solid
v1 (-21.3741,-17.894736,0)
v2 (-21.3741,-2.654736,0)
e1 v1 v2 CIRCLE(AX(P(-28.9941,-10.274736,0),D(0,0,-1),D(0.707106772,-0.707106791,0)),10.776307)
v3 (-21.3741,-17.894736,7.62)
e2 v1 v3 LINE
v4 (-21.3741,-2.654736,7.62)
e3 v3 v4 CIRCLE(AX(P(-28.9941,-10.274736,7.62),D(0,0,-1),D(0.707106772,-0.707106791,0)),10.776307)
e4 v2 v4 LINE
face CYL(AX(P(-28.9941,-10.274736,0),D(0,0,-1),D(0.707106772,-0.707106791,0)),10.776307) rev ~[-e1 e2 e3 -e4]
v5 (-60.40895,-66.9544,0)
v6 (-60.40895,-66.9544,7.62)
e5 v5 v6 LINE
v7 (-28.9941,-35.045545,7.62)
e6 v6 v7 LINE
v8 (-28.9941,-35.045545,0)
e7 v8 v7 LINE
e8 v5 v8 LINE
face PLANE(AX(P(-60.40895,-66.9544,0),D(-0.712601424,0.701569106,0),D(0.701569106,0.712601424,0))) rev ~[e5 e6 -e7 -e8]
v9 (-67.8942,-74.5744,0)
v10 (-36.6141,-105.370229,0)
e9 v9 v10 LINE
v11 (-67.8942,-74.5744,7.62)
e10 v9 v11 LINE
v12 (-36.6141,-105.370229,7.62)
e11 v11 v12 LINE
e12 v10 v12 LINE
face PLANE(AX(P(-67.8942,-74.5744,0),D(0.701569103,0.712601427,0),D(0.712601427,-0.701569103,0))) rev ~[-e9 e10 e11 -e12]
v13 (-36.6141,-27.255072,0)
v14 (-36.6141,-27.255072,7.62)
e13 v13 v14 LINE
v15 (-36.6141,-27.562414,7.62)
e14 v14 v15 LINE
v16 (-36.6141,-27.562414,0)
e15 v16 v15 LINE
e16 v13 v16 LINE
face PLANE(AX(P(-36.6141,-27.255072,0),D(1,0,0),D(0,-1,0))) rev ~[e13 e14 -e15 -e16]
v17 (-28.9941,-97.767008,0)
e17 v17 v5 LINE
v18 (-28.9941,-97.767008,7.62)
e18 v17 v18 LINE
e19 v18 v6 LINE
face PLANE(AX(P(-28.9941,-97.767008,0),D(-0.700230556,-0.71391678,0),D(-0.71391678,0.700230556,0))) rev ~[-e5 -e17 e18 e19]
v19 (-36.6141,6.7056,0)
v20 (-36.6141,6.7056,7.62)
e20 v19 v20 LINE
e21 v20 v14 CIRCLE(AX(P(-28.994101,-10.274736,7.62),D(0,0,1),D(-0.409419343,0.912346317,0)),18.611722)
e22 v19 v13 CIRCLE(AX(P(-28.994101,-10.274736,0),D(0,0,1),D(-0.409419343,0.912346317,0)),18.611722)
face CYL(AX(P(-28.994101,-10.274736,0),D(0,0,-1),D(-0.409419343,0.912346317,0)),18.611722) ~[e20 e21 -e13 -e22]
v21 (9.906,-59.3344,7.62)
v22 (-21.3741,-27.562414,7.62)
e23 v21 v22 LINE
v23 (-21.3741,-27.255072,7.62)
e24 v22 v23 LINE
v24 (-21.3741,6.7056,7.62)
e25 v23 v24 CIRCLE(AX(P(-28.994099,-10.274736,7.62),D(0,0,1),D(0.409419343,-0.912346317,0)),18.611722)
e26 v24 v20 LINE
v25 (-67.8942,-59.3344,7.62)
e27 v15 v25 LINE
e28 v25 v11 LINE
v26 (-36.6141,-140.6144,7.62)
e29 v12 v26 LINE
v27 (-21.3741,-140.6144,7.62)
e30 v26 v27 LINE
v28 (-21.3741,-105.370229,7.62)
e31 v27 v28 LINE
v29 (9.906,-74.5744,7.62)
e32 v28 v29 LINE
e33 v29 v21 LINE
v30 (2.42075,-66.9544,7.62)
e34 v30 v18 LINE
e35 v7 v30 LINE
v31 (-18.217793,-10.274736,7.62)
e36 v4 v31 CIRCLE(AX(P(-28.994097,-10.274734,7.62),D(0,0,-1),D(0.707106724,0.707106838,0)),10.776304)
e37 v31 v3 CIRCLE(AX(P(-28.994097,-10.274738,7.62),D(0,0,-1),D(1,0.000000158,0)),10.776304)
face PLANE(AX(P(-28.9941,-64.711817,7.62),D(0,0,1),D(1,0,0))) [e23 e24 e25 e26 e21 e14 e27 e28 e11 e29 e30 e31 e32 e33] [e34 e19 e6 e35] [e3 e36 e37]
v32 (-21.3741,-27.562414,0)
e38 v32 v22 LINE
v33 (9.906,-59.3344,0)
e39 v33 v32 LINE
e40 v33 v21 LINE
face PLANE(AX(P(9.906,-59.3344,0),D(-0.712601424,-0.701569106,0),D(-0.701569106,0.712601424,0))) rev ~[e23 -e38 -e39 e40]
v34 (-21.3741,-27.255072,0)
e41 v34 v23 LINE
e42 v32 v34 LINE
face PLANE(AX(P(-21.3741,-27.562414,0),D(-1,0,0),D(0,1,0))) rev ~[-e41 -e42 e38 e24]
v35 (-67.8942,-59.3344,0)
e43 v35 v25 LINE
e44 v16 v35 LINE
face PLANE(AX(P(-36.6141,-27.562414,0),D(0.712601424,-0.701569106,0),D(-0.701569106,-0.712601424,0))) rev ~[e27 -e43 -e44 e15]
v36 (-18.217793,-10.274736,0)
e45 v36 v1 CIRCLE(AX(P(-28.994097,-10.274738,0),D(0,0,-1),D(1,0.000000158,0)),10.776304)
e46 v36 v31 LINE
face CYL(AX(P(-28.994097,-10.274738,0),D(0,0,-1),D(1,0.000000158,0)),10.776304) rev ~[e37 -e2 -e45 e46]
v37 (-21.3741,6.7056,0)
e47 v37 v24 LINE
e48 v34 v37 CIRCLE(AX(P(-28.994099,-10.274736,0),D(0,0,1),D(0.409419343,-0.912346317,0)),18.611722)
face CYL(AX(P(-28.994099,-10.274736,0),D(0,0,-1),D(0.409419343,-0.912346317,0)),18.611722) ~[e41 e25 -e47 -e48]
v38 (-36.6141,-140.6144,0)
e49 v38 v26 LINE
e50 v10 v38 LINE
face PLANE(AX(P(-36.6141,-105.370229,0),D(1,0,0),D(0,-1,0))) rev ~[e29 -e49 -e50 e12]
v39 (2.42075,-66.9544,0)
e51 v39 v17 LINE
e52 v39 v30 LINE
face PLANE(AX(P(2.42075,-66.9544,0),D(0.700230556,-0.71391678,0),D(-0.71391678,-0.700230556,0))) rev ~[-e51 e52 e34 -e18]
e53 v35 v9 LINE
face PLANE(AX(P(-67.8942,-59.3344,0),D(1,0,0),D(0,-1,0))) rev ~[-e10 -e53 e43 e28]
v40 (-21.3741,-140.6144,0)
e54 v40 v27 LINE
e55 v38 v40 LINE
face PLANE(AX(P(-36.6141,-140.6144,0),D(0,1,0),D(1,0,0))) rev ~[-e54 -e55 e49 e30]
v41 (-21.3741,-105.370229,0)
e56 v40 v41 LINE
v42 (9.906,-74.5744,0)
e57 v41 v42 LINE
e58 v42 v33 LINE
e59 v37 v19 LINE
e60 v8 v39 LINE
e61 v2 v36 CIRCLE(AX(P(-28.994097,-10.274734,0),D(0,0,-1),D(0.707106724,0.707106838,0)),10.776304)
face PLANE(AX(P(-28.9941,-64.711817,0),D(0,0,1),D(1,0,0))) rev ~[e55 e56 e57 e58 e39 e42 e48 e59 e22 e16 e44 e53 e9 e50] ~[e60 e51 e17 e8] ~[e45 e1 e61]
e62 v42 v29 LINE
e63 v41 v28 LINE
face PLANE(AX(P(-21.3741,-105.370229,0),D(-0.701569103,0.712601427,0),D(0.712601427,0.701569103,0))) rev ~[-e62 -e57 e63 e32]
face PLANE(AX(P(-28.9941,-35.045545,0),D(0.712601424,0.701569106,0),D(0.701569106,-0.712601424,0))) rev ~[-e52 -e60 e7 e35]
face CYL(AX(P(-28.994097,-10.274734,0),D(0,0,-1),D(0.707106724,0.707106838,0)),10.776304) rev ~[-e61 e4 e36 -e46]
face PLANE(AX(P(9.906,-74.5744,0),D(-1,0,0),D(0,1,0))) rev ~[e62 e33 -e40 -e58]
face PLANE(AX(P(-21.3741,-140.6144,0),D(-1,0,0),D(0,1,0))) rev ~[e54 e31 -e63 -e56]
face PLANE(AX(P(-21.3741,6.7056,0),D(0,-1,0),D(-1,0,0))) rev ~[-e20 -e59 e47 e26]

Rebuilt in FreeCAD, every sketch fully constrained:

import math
import FreeCAD as App
import Part
import Sketcher
from FreeCAD import Vector
Q = App.Units.Quantity


def add_polygon(sketch, points):
    """Adds a closed chain of lines whose ends are joined by coincident constraints."""
    first, n = sketch.GeometryCount, len(points)
    for a, b in zip(points, points[1:] + points[:1]):
        sketch.addGeometry(Part.LineSegment(App.Vector(*a, 0), App.Vector(*b, 0)), False)
    for i in range(n):
        sketch.addConstraint(Sketcher.Constraint("Coincident", first + i, 2, first + (i + 1) % n, 1))

doc = App.newDocument("Part")
body = doc.addObject("PartDesign::Body", "Body")

# Sketch on XY plane
sketch1 = body.newObject("Sketcher::SketchObject", "Sketch")
sketch1.AttachmentSupport = (doc.getObject("XY_Plane"), [""])
sketch1.MapMode = "FlatFace"
sketch1.addGeometry(Part.LineSegment(Vector(-36.61, -105.37, 0), Vector(-36.61, -140.61, 0)), False)  # 0
sketch1.addGeometry(Part.LineSegment(Vector(-36.61, -140.61, 0), Vector(-21.37, -140.61, 0)), False)  # 1
sketch1.addGeometry(Part.LineSegment(Vector(-21.37, -140.61, 0), Vector(-21.37, -105.37, 0)), False)  # 2
sketch1.addGeometry(Part.LineSegment(Vector(-21.37, -105.37, 0), Vector(9.91, -74.57, 0)), False)  # 3
sketch1.addGeometry(Part.LineSegment(Vector(9.91, -74.57, 0), Vector(9.91, -59.33, 0)), False)  # 4
sketch1.addGeometry(Part.LineSegment(Vector(9.91, -59.33, 0), Vector(-21.37, -27.56, 0)), False)  # 5
sketch1.addGeometry(Part.LineSegment(Vector(-21.37, -27.56, 0), Vector(-21.37, -27.26, 0)), False)  # 6
sketch1.addGeometry(Part.ArcOfCircle(Part.Circle(Vector(-28.99, -10.27, 0), Vector(0, 0, 1), 18.61), math.radians(-66), math.radians(66)), False)  # 7
sketch1.addGeometry(Part.LineSegment(Vector(-21.37, 6.71, 0), Vector(-36.61, 6.71, 0)), False)  # 8
sketch1.addGeometry(Part.ArcOfCircle(Part.Circle(Vector(-28.99, -10.27, 0), Vector(0, 0, 1), 18.61), math.radians(114), math.radians(246)), False)  # 9
sketch1.addGeometry(Part.LineSegment(Vector(-36.61, -27.26, 0), Vector(-36.61, -27.56, 0)), False)  # 10
sketch1.addGeometry(Part.LineSegment(Vector(-36.61, -27.56, 0), Vector(-67.89, -59.33, 0)), False)  # 11
sketch1.addGeometry(Part.LineSegment(Vector(-67.89, -59.33, 0), Vector(-67.89, -74.57, 0)), False)  # 12
sketch1.addGeometry(Part.LineSegment(Vector(-67.89, -74.57, 0), Vector(-36.61, -105.37, 0)), False)  # 13
add_polygon(sketch1, [(2.42, -66.95), (-28.99, -97.77), (-60.41, -66.95), (-28.99, -35.05)])  # lines 14-17
sketch1.addGeometry(Part.ArcOfCircle(Part.Circle(Vector(-28.99, -10.27, 0), Vector(0, 0, 1), 10.78), math.radians(-45), math.radians(0)), False)  # 18
sketch1.addGeometry(Part.ArcOfCircle(Part.Circle(Vector(-28.99, -10.27, 0), Vector(0, 0, 1), 10.78), math.radians(45), math.radians(315)), False)  # 19
sketch1.addGeometry(Part.ArcOfCircle(Part.Circle(Vector(-28.99, -10.27, 0), Vector(0, 0, 1), 10.78), math.radians(0), math.radians(45)), False)  # 20
sketch1.addConstraint(Sketcher.Constraint("Coincident", 0, 2, 1, 1))
sketch1.addConstraint(Sketcher.Constraint("Coincident", 1, 2, 2, 1))
sketch1.addConstraint(Sketcher.Constraint("Coincident", 2, 2, 3, 1))
sketch1.addConstraint(Sketcher.Constraint("Coincident", 3, 2, 4, 1))
sketch1.addConstraint(Sketcher.Constraint("Coincident", 4, 2, 5, 1))
sketch1.addConstraint(Sketcher.Constraint("Coincident", 5, 2, 6, 1))
sketch1.addConstraint(Sketcher.Constraint("Coincident", 6, 2, 7, 1))
sketch1.addConstraint(Sketcher.Constraint("Coincident", 7, 2, 8, 1))
sketch1.addConstraint(Sketcher.Constraint("Coincident", 8, 2, 9, 1))
sketch1.addConstraint(Sketcher.Constraint("Coincident", 9, 2, 10, 1))
sketch1.addConstraint(Sketcher.Constraint("Coincident", 10, 2, 11, 1))
sketch1.addConstraint(Sketcher.Constraint("Coincident", 11, 2, 12, 1))
sketch1.addConstraint(Sketcher.Constraint("Coincident", 12, 2, 13, 1))
sketch1.addConstraint(Sketcher.Constraint("Coincident", 13, 2, 0, 1))
sketch1.addConstraint(Sketcher.Constraint("Tangent", 18, 1, 19, 2))
sketch1.addConstraint(Sketcher.Constraint("Tangent", 19, 1, 20, 2))
sketch1.addConstraint(Sketcher.Constraint("Tangent", 20, 1, 18, 2))
sketch1.addConstraint(Sketcher.Constraint("Vertical", 0))
sketch1.addConstraint(Sketcher.Constraint("Horizontal", 1))
sketch1.addConstraint(Sketcher.Constraint("Vertical", 2))
sketch1.addConstraint(Sketcher.Constraint("Vertical", 4))
sketch1.addConstraint(Sketcher.Constraint("Vertical", 6))
sketch1.addConstraint(Sketcher.Constraint("Horizontal", 8))
sketch1.addConstraint(Sketcher.Constraint("Vertical", 10))
sketch1.addConstraint(Sketcher.Constraint("Vertical", 12))
sketch1.addConstraint(Sketcher.Constraint("Coincident", 9, 3, 7, 3))
sketch1.addConstraint(Sketcher.Constraint("Coincident", 18, 3, 7, 3))
sketch1.addConstraint(Sketcher.Constraint("Equal", 7, 9))
sketch1.addConstraint(Sketcher.Constraint("Perpendicular", 3, 5))
sketch1.addConstraint(Sketcher.Constraint("Perpendicular", 11, 13))
sketch1.addConstraint(Sketcher.Constraint("Perpendicular", 13, 16))
sketch1.addConstraint(Sketcher.Constraint("Parallel", 5, 17))
sketch1.addConstraint(Sketcher.Constraint("Horizontal", 6, 2, 9, 2))
sketch1.addConstraint(Sketcher.Constraint("Horizontal", 5, 2, 10, 2))
sketch1.addConstraint(Sketcher.Constraint("Horizontal", 4, 2, 11, 2))
sketch1.addConstraint(Sketcher.Constraint("Horizontal", 3, 2, 12, 2))
sketch1.addConstraint(Sketcher.Constraint("Horizontal", 2, 2, 13, 2))
sketch1.addConstraint(Sketcher.Constraint("Horizontal", 15, 2, 17, 2))
sketch1.addConstraint(Sketcher.Constraint("Horizontal", 19, 3, 20, 1))
sketch1.addConstraint(Sketcher.Constraint("Vertical", 2, 2, 5, 2))
sketch1.addConstraint(Sketcher.Constraint("Vertical", 6, 2, 7, 2))
sketch1.addConstraint(Sketcher.Constraint("Vertical", 0, 2, 8, 2))
sketch1.addConstraint(Sketcher.Constraint("Vertical", 19, 3, 14, 2))
sketch1.addConstraint(Sketcher.Constraint("Vertical", 14, 2, 16, 2))
sketch1.addConstraint(Sketcher.Constraint("Vertical", 7, 2, 18, 1))
sketch1.addConstraint(Sketcher.Constraint("Vertical", 18, 1, 19, 1))
sketch1.addConstraint(Sketcher.Constraint("Equal", 8, 4))
sketch1.addConstraint(Sketcher.Constraint("DistanceX", 1, 1, 1, 2, Q("0.6 in")))
sketch1.addConstraint(Sketcher.Constraint("DistanceY", 1, 2, 3, 2, Q("2.6 in")))
sketch1.addConstraint(Sketcher.Constraint("DistanceY", 12, 2, 15, 2, Q("0.3 in")))
sketch1.addConstraint(Sketcher.Constraint("DistanceY", 18, 1, 18, 3, Q("0.2999999 in")))
sketch1.addConstraint(Sketcher.Constraint("DistanceX", -1, 1, 3, 2, Q("0.39 in")))
sketch1.addConstraint(Sketcher.Constraint("DistanceY", 6, 1, 6, 2, Q("0.0121001 in")))
sketch1.addConstraint(Sketcher.Constraint("DistanceY", 0, 2, -1, 1, Q("5.536 in")))
sketch1.addConstraint(Sketcher.Constraint("DistanceY", -1, 1, 7, 2, Q("0.264 in")))
sketch1.addConstraint(Sketcher.Constraint("DistanceX", 11, 2, -1, 1, Q("2.673 in")))
sketch1.addConstraint(Sketcher.Constraint("Radius", 7, Q("18.611722 mm")))
sketch1.addConstraint(Sketcher.Constraint("Distance", 14, Q("44.003518 mm")))
sketch1.addConstraint(Sketcher.Constraint("DistanceY", 14, 2, -1, 1, Q("97.767008 mm")))
pad1 = body.newObject("PartDesign::Pad", "Pad")
pad1.Profile = sketch1
pad1.Length = Q("0.3 in")

doc.recompute()
